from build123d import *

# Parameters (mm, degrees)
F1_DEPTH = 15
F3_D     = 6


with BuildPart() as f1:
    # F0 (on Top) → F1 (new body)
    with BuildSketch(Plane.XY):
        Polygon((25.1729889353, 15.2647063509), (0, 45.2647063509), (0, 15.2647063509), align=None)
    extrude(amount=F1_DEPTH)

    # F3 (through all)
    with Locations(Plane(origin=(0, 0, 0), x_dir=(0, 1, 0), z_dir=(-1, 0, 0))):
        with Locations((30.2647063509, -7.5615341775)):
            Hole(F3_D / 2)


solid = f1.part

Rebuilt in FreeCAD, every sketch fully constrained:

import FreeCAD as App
import Part
import Sketcher
Q = App.Units.Quantity


def add_polygon(sketch, points):
    """Adds a closed chain of lines whose ends are joined by coincident constraints."""
    first, n = sketch.GeometryCount, len(points)
    for a, b in zip(points, points[1:] + points[:1]):
        sketch.addGeometry(Part.LineSegment(App.Vector(*a, 0), App.Vector(*b, 0)), False)
    for i in range(n):
        sketch.addConstraint(Sketcher.Constraint("Coincident", first + i, 2, first + (i + 1) % n, 1))

doc = App.newDocument("Part")
body = doc.addObject("PartDesign::Body", "Body")

sketch1 = doc.addObject("Sketcher::SketchObject", "Sketch")
body.addObject(sketch1)
sketch1.AttachmentSupport = (doc.XY_Plane, [""])
sketch1.MapMode = "FlatFace"
add_polygon(sketch1, [(25, 15), (0, 45), (0, 15)])
sketch1.addConstraint([
    Sketcher.Constraint("Vertical", 1),
    Sketcher.Constraint("Horizontal", 2),
    Sketcher.Constraint("PointOnObject", 0, 2, -2),
    Sketcher.Constraint("DistanceY", 1, 2, 1, 1, Q("30 mm")),
    Sketcher.Constraint("Angle", 0, Q("130 deg")),
    Sketcher.Constraint("DistanceY", -1, 1, 0, 2, Q("45.264706 mm")),
])
pad1 = doc.addObject("PartDesign::Pad", "Pad")
body.addObject(pad1)
pad1.Profile = sketch1
pad1.Length = 15

sketch2 = doc.addObject("Sketcher::SketchObject", "Sketch001")
body.addObject(sketch2)
sketch2.AttachmentSupport = (doc.YZ_Plane, [""])
sketch2.MapMode = "FlatFace"
sketch2.addGeometry(Part.Circle(App.Vector(30.3, 7.6, 0), App.Vector(0, 0, 1), 3), False)
sketch2.addConstraint([
    Sketcher.Constraint("Diameter", 0, Q("6 mm")),
    Sketcher.Constraint("DistanceX", -1, 1, 0, 3, Q("30.264706 mm")),
    Sketcher.Constraint("DistanceY", -1, 1, 0, 3, Q("7.561534 mm")),
])
doc.recompute()
hole = doc.addObject("PartDesign::Hole", "Hole")
body.addObject(hole)
hole.Profile = sketch2
hole.ThreadType = "None"
hole.Diameter = 6
hole.DepthType = "ThroughAll"
hole.Reversed = True

doc.recompute()
